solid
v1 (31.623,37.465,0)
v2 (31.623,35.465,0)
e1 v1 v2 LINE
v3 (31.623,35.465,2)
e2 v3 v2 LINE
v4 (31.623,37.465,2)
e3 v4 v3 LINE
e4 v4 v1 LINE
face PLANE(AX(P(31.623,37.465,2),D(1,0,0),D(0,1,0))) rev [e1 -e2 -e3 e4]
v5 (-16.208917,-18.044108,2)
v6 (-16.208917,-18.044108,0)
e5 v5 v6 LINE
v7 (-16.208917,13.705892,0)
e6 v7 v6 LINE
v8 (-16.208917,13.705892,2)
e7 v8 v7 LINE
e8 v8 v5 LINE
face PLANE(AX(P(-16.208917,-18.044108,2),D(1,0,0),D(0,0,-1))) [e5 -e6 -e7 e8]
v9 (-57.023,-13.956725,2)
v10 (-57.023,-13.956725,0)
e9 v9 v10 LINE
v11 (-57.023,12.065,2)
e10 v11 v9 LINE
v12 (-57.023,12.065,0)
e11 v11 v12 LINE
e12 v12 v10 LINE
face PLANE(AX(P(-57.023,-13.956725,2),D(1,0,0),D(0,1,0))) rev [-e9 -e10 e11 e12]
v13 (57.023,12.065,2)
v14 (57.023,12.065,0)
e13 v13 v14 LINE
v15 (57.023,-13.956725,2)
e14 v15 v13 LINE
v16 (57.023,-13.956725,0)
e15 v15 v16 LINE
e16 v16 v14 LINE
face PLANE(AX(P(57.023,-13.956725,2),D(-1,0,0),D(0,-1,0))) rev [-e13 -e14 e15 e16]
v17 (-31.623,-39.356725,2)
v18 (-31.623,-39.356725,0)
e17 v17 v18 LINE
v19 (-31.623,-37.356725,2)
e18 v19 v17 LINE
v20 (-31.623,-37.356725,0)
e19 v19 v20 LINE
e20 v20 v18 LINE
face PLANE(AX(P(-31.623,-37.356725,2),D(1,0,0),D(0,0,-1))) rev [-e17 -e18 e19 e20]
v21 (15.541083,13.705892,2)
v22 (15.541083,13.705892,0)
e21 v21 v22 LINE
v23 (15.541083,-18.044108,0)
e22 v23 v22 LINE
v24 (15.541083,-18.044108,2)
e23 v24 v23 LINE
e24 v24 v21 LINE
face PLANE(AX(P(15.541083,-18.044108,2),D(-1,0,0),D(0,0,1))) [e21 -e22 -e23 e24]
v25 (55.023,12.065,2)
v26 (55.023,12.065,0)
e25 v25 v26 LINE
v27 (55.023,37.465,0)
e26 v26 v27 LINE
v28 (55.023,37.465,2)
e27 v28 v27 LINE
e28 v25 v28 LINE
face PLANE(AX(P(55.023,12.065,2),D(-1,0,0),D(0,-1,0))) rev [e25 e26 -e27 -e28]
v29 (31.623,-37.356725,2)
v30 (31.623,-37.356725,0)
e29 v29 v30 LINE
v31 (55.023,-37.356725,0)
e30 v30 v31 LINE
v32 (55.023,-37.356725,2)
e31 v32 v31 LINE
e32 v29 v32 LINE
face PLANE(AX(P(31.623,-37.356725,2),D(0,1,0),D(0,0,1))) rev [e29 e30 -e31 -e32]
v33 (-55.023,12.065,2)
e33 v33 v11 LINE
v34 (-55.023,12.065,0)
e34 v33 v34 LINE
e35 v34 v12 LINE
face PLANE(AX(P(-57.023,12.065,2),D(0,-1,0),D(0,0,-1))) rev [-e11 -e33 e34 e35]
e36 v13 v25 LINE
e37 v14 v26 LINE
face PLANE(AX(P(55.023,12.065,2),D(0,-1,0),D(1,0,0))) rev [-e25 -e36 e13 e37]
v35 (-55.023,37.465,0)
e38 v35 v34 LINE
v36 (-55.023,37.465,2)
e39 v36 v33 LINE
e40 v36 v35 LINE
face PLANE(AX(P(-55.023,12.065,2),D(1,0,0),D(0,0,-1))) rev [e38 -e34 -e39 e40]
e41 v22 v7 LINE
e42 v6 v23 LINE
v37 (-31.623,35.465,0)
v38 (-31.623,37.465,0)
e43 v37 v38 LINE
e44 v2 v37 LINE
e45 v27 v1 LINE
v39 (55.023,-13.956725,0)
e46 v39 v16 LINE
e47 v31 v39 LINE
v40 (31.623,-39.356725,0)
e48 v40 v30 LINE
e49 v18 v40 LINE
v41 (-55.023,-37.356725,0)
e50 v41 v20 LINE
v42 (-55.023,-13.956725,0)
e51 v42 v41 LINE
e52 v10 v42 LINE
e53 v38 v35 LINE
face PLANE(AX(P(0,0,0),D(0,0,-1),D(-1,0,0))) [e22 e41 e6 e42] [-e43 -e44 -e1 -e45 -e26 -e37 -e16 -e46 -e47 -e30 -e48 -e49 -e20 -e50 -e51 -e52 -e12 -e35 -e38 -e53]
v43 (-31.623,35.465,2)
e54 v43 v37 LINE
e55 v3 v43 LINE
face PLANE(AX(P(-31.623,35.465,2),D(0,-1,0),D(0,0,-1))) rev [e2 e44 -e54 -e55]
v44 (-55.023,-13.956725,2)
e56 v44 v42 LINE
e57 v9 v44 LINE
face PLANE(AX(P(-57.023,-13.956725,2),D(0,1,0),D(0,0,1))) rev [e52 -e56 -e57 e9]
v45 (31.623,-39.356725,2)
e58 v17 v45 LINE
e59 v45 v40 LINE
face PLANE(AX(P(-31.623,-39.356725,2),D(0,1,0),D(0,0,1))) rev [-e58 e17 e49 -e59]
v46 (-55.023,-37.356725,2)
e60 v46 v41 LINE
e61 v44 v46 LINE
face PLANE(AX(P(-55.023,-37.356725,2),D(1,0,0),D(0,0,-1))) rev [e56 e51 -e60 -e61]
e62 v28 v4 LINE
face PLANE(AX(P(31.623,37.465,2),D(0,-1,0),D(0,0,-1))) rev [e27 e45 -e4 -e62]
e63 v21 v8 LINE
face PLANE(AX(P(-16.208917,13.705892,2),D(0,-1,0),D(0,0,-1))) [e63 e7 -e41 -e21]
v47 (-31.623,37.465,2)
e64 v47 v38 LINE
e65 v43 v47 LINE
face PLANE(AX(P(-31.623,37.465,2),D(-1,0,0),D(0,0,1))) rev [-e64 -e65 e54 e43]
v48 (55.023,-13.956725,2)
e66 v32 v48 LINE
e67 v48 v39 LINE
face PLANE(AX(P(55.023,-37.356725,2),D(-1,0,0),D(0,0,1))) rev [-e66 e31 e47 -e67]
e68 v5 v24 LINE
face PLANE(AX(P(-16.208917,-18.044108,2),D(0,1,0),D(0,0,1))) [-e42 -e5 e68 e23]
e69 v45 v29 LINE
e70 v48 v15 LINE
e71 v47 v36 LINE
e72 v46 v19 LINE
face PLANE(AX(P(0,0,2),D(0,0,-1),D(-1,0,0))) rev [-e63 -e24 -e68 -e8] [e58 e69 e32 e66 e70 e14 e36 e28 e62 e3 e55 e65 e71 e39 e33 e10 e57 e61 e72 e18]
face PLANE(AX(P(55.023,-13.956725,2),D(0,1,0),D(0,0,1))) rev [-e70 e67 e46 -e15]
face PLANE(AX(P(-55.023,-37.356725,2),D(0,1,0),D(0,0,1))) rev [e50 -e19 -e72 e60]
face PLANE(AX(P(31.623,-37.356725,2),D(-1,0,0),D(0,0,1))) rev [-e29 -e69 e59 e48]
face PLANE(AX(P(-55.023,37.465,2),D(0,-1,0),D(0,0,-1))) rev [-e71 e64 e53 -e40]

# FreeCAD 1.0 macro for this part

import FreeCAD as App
import Part
import Sketcher
Q = App.Units.Quantity

doc = App.newDocument("Part")
body = doc.addObject("PartDesign::Body", "Body")

# Sketch on XY plane
sketch1 = body.newObject("Sketcher::SketchObject", "Sketch")
sketch1.AttachmentSupport = (doc.getObject("XY_Plane"), [""])
sketch1.MapMode = "FlatFace"
sketch1.addGeometry([
    Part.LineSegment(App.Vector(-31.6, -39.4, 0), App.Vector(31.6, -39.4, 0)),  # 0
    Part.LineSegment(App.Vector(31.6, -39.4, 0), App.Vector(31.6, -37.4, 0)),  # 1
    Part.LineSegment(App.Vector(31.6, -37.4, 0), App.Vector(55, -37.4, 0)),  # 2
    Part.LineSegment(App.Vector(55, -37.4, 0), App.Vector(55, -14, 0)),  # 3
    Part.LineSegment(App.Vector(55, -14, 0), App.Vector(57, -14, 0)),  # 4
    Part.LineSegment(App.Vector(57, -14, 0), App.Vector(57, 12.1, 0)),  # 5
    Part.LineSegment(App.Vector(57, 12.1, 0), App.Vector(55, 12.1, 0)),  # 6
    Part.LineSegment(App.Vector(55, 12.1, 0), App.Vector(55, 37.5, 0)),  # 7
    Part.LineSegment(App.Vector(55, 37.5, 0), App.Vector(31.6, 37.5, 0)),  # 8
    Part.LineSegment(App.Vector(31.6, 37.5, 0), App.Vector(31.6, 35.5, 0)),  # 9
    Part.LineSegment(App.Vector(31.6, 35.5, 0), App.Vector(-31.6, 35.5, 0)),  # 10
    Part.LineSegment(App.Vector(-31.6, 35.5, 0), App.Vector(-31.6, 37.5, 0)),  # 11
    Part.LineSegment(App.Vector(-31.6, 37.5, 0), App.Vector(-55, 37.5, 0)),  # 12
    Part.LineSegment(App.Vector(-55, 37.5, 0), App.Vector(-55, 12.1, 0)),  # 13
    Part.LineSegment(App.Vector(-55, 12.1, 0), App.Vector(-57, 12.1, 0)),  # 14
    Part.LineSegment(App.Vector(-57, 12.1, 0), App.Vector(-57, -14, 0)),  # 15
    Part.LineSegment(App.Vector(-57, -14, 0), App.Vector(-55, -14, 0)),  # 16
    Part.LineSegment(App.Vector(-55, -14, 0), App.Vector(-55, -37.4, 0)),  # 17
    Part.LineSegment(App.Vector(-55, -37.4, 0), App.Vector(-31.6, -37.4, 0)),  # 18
    Part.LineSegment(App.Vector(-31.6, -37.4, 0), App.Vector(-31.6, -39.4, 0)),  # 19
    Part.LineSegment(App.Vector(15.5, -18, 0), App.Vector(-16.2, -18, 0)),  # 20
    Part.LineSegment(App.Vector(-16.2, -18, 0), App.Vector(-16.2, 13.7, 0)),  # 21
    Part.LineSegment(App.Vector(-16.2, 13.7, 0), App.Vector(15.5, 13.7, 0)),  # 22
    Part.LineSegment(App.Vector(15.5, 13.7, 0), App.Vector(15.5, -18, 0)),  # 23
], False)
sketch1.addConstraint([
    Sketcher.Constraint("Coincident", 0, 2, 1, 1),
    Sketcher.Constraint("Coincident", 1, 2, 2, 1),
    Sketcher.Constraint("Coincident", 2, 2, 3, 1),
    Sketcher.Constraint("Coincident", 3, 2, 4, 1),
    Sketcher.Constraint("Coincident", 4, 2, 5, 1),
    Sketcher.Constraint("Coincident", 5, 2, 6, 1),
    Sketcher.Constraint("Coincident", 6, 2, 7, 1),
    Sketcher.Constraint("Coincident", 7, 2, 8, 1),
    Sketcher.Constraint("Coincident", 8, 2, 9, 1),
    Sketcher.Constraint("Coincident", 9, 2, 10, 1),
    Sketcher.Constraint("Coincident", 10, 2, 11, 1),
    Sketcher.Constraint("Coincident", 11, 2, 12, 1),
    Sketcher.Constraint("Coincident", 12, 2, 13, 1),
    Sketcher.Constraint("Coincident", 13, 2, 14, 1),
    Sketcher.Constraint("Coincident", 14, 2, 15, 1),
    Sketcher.Constraint("Coincident", 15, 2, 16, 1),
    Sketcher.Constraint("Coincident", 16, 2, 17, 1),
    Sketcher.Constraint("Coincident", 17, 2, 18, 1),
    Sketcher.Constraint("Coincident", 18, 2, 19, 1),
    Sketcher.Constraint("Coincident", 19, 2, 0, 1),
    Sketcher.Constraint("Coincident", 20, 2, 21, 1),
    Sketcher.Constraint("Coincident", 21, 2, 22, 1),
    Sketcher.Constraint("Coincident", 22, 2, 23, 1),
    Sketcher.Constraint("Coincident", 23, 2, 20, 1),
    Sketcher.Constraint("Horizontal", 0),
    Sketcher.Constraint("Vertical", 1),
    Sketcher.Constraint("Horizontal", 2),
    Sketcher.Constraint("Vertical", 3),
    Sketcher.Constraint("Horizontal", 4),
    Sketcher.Constraint("Vertical", 5),
    Sketcher.Constraint("Horizontal", 6),
    Sketcher.Constraint("Vertical", 7),
    Sketcher.Constraint("Horizontal", 8),
    Sketcher.Constraint("Vertical", 9),
    Sketcher.Constraint("Horizontal", 10),
    Sketcher.Constraint("Vertical", 11),
    Sketcher.Constraint("Horizontal", 12),
    Sketcher.Constraint("Vertical", 13),
    Sketcher.Constraint("Horizontal", 14),
    Sketcher.Constraint("Vertical", 15),
    Sketcher.Constraint("Horizontal", 16),
    Sketcher.Constraint("Vertical", 17),
    Sketcher.Constraint("Horizontal", 18),
    Sketcher.Constraint("Vertical", 19),
    Sketcher.Constraint("Horizontal", 20),
    Sketcher.Constraint("Vertical", 21),
    Sketcher.Constraint("Horizontal", 22),
    Sketcher.Constraint("Vertical", 23),
    Sketcher.Constraint("Symmetric", 8, 2, 11, 2, -2),
    Sketcher.Constraint("Symmetric", 6, 2, 13, 2, -2),
    Sketcher.Constraint("Symmetric", 4, 2, 15, 2, -2),
    Sketcher.Constraint("Symmetric", 2, 2, 17, 2, -2),
    Sketcher.Constraint("Vertical", 3, 2, 6, 2),
    Sketcher.Constraint("Vertical", 1, 2, 8, 2),
    Sketcher.Constraint("Vertical", 11, 2, 18, 2),
    Sketcher.Constraint("Equal", 16, 1),
    Sketcher.Constraint("Equal", 18, 3),
    Sketcher.Constraint("Equal", 1, 9),
    Sketcher.Constraint("Equal", 22, 21),
    Sketcher.Constraint("DistanceY", 7, 1, 7, 2, Q("1 in")),
    Sketcher.Constraint("DistanceY", 0, 2, 3, 2, Q("1 in")),
    Sketcher.Constraint("DistanceX", 0, 1, 0, 2, Q("2.49 in")),
    Sketcher.Constraint("DistanceX", 20, 2, 20, 1, Q("1.25 in")),
    Sketcher.Constraint("DistanceY", -1, 1, 5, 2, Q("0.475 in")),
    Sketcher.Constraint("DistanceX", 2, 1, 2, 2, 23.4),
    Sketcher.Constraint("DistanceY", 5, 1, 5, 2, 26.021725),
    Sketcher.Constraint("DistanceY", 20, 2, -1, 1, 18.044108),
    Sketcher.Constraint("DistanceX", 20, 2, -1, 1, 16.208917),
])
pad1 = body.newObject("PartDesign::Pad", "Pad")
pad1.Profile = sketch1
pad1.Length = 2

doc.recompute()
